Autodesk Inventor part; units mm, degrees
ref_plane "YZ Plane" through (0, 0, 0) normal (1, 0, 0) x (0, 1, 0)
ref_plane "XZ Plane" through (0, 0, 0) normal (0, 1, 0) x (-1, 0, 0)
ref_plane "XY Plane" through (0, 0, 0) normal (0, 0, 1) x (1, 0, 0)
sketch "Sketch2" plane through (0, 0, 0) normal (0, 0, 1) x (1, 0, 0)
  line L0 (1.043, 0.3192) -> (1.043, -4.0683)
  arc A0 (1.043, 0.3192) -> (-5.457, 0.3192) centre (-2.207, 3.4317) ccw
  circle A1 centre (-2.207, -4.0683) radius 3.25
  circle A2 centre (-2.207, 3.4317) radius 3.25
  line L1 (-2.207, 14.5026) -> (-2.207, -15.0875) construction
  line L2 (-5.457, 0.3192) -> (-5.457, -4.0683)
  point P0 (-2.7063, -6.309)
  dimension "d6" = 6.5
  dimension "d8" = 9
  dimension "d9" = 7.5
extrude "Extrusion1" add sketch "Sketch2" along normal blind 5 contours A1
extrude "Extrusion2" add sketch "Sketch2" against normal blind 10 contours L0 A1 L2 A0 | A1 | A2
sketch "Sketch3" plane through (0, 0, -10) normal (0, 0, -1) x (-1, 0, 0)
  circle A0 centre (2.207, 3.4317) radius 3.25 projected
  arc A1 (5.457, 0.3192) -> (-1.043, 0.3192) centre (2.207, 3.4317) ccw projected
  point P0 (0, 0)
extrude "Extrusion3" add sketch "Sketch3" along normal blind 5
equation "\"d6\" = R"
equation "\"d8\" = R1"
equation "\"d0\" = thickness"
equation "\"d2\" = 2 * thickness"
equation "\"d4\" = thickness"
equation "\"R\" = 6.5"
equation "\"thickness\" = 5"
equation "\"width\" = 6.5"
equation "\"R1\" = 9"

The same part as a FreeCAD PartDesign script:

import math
import FreeCAD as App
import Part
import Sketcher

V = App.Vector
Q = App.Units.Quantity

doc = App.newDocument("Part")
params = doc.addObject("Spreadsheet::Sheet", "Params")
for row, (alias, value) in enumerate([
    ("sketch1_diameter", "6.5 mm"),
    ("pad1_length", "5 mm"),
    ("sketch2_radius", "4.5 mm"),
    ("sketch2_radius2", "3.25 mm"),
    ("pad2_length", "10 mm"),
    ("sketch3_diameter", "6.5 mm"),
    ("pad3_length", "5 mm"),
], start=1):
    params.set(f"A{row}", alias)
    params.set(f"B{row}", "=" + value)
    params.setAlias(f"B{row}", alias)

body = doc.addObject("PartDesign::Body", "Body")

sketch1 = doc.addObject("Sketcher::SketchObject", "Sketch")
body.addObject(sketch1)
sketch1.AttachmentSupport = (doc.XY_Plane, [""])
sketch1.MapMode = "FlatFace"
sketch1.addGeometry(Part.Circle(V(-2.2, -4.1, 0), V(0, 0, 1), 3.2), False)
sketch1.addConstraint(Sketcher.Constraint("Diameter", 0, Q("6.5 mm")))
sketch1.addConstraint(Sketcher.Constraint("DistanceX", 0, 3, -1, 1, Q("2.207 mm")))
sketch1.addConstraint(Sketcher.Constraint("DistanceY", 0, 3, -1, 1, Q("4.0683 mm")))
sketch1.setExpression("Constraints[0]", "Params.sketch1_diameter")
pad1 = doc.addObject("PartDesign::Pad", "Pad")
body.addObject(pad1)
pad1.Profile = sketch1
pad1.setExpression("Length", "Params.pad1_length")

sketch2 = doc.addObject("Sketcher::SketchObject", "Sketch001")
body.addObject(sketch2)
sketch2.AttachmentSupport = (doc.XY_Plane, [""])
sketch2.MapMode = "FlatFace"
sketch2.addGeometry(Part.LineSegment(V(1, -4.1, 0), V(1, 0.3, 0)), False)
sketch2.addGeometry(Part.ArcOfCircle(Part.Circle(V(-2.2, 3.4, 0), V(0, 0, 1), 4.5), math.radians(-44), math.radians(224)), False)
sketch2.addGeometry(Part.LineSegment(V(-5.5, 0.3, 0), V(-5.5, -4.1, 0)), False)
sketch2.addGeometry(Part.ArcOfCircle(Part.Circle(V(-2.2, -4.1, 0), V(0, 0, 1), 3.2), math.radians(180), math.radians(360)), False)
sketch2.addConstraint(Sketcher.Constraint("Coincident", 0, 2, 1, 1))
sketch2.addConstraint(Sketcher.Constraint("Coincident", 1, 2, 2, 1))
sketch2.addConstraint(Sketcher.Constraint("Tangent", 2, 2, 3, 1))
sketch2.addConstraint(Sketcher.Constraint("Tangent", 3, 2, 0, 1))
sketch2.addConstraint(Sketcher.Constraint("Vertical", 0))
sketch2.addConstraint(Sketcher.Constraint("Vertical", 2))
sketch2.addConstraint(Sketcher.Constraint("Horizontal", 0, 2, 1, 2))
sketch2.addConstraint(Sketcher.Constraint("Radius", 1, Q("4.5 mm")))
sketch2.addConstraint(Sketcher.Constraint("Radius", 3, Q("3.25 mm")))
sketch2.addConstraint(Sketcher.Constraint("DistanceY", 3, 3, 1, 3, Q("7.5 mm")))
sketch2.addConstraint(Sketcher.Constraint("DistanceX", 1, 3, -1, 1, Q("2.207 mm")))
sketch2.addConstraint(Sketcher.Constraint("DistanceY", -1, 1, 1, 3, Q("3.4317 mm")))
sketch2.setExpression("Constraints[7]", "Params.sketch2_radius")
sketch2.setExpression("Constraints[8]", "Params.sketch2_radius2")
pad2 = doc.addObject("PartDesign::Pad", "Pad001")
body.addObject(pad2)
pad2.Profile = sketch2
pad2.setExpression("Length", "Params.pad2_length")
pad2.Reversed = True

sketch3 = doc.addObject("Sketcher::SketchObject", "Sketch002")
body.addObject(sketch3)
sketch3.AttachmentSupport = (doc.XY_Plane, [""])
sketch3.MapMode = "FlatFace"
sketch3.AttachmentOffset = App.Placement(V(0, 0, -10), App.Rotation())
sketch3.addGeometry(Part.Circle(V(-2.2, 3.4, 0), V(0, 0, 1), 3.2), False)
sketch3.addConstraint(Sketcher.Constraint("Diameter", 0, Q("6.5 mm")))
sketch3.addConstraint(Sketcher.Constraint("DistanceX", 0, 3, -1, 1, Q("2.207 mm")))
sketch3.addConstraint(Sketcher.Constraint("DistanceY", -1, 1, 0, 3, Q("3.4317 mm")))
sketch3.setExpression("Constraints[0]", "Params.sketch3_diameter")
pad3 = doc.addObject("PartDesign::Pad", "Pad002")
body.addObject(pad3)
pad3.Profile = sketch3
pad3.setExpression("Length", "Params.pad3_length")
pad3.Reversed = True

doc.recompute()
